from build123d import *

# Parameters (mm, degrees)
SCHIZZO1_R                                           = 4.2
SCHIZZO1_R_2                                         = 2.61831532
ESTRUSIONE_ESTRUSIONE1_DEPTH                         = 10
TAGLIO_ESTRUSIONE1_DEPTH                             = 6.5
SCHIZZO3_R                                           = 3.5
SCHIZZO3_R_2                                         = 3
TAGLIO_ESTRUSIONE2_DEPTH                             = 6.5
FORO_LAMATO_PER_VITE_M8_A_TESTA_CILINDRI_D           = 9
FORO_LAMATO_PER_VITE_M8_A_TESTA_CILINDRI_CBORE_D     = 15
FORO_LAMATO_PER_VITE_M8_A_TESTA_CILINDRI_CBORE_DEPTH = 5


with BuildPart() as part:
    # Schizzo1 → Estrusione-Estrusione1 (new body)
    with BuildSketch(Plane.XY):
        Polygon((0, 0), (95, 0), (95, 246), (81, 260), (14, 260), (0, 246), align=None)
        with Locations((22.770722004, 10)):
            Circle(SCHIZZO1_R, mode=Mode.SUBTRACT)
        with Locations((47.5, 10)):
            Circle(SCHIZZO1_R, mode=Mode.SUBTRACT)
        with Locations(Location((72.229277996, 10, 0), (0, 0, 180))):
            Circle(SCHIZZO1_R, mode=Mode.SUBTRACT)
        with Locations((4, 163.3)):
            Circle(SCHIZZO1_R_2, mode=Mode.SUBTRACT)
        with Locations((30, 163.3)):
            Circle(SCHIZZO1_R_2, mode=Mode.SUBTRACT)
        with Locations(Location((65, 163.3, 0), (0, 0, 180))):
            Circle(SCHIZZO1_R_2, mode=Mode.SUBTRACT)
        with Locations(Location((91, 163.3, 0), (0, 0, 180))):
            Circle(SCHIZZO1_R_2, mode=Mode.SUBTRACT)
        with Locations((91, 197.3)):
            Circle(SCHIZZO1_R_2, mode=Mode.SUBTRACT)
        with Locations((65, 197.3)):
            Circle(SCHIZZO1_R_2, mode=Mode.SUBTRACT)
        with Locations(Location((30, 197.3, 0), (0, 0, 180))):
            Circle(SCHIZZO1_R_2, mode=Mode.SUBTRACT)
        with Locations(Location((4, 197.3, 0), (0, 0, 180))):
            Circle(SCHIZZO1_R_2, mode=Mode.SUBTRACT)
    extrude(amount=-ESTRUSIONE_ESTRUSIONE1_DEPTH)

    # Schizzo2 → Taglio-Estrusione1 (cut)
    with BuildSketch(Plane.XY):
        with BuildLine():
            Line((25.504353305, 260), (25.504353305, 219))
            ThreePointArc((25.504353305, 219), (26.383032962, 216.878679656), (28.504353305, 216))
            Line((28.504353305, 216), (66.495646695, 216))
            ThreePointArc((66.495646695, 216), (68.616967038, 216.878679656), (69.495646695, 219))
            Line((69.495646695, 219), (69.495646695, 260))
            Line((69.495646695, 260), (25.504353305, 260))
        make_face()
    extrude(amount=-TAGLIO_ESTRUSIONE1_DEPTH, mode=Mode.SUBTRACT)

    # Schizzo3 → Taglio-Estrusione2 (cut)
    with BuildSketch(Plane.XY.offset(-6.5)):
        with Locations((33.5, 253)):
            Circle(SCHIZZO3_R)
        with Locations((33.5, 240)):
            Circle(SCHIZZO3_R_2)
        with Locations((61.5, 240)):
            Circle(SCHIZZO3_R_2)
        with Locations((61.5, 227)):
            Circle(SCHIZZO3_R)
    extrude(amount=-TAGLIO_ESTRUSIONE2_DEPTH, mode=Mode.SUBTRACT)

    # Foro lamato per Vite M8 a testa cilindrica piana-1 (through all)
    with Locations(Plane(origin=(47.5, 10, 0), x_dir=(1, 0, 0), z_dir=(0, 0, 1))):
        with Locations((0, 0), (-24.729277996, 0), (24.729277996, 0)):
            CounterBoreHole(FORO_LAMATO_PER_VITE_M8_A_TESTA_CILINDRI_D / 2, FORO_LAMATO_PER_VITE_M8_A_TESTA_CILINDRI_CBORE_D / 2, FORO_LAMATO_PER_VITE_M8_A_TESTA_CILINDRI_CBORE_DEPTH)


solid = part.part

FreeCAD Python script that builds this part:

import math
import FreeCAD as App
import Part
import Sketcher
from FreeCAD import Vector
Q = App.Units.Quantity


def add_polygon(sketch, points):
    """Adds a closed chain of lines whose ends are joined by coincident constraints."""
    first, n = sketch.GeometryCount, len(points)
    for a, b in zip(points, points[1:] + points[:1]):
        sketch.addGeometry(Part.LineSegment(App.Vector(*a, 0), App.Vector(*b, 0)), False)
    for i in range(n):
        sketch.addConstraint(Sketcher.Constraint("Coincident", first + i, 2, first + (i + 1) % n, 1))

doc = App.newDocument("Part")
body = doc.addObject("PartDesign::Body", "Body")

# Sketch on XY plane
sketch1 = body.newObject("Sketcher::SketchObject", "Sketch")
sketch1.AttachmentSupport = (doc.getObject("XY_Plane"), [""])
sketch1.MapMode = "FlatFace"
add_polygon(sketch1, [(0, 0), (95, 0), (95, 246), (81, 260), (14, 260), (0, 246)])  # lines 0-5
sketch1.addGeometry(Part.Circle(Vector(22.770722, 10, 0), Vector(0, 0, 1), 4.2), False)  # 6
sketch1.addGeometry(Part.Circle(Vector(47.5, 10, 0), Vector(0, 0, 1), 4.2), False)  # 7
sketch1.addGeometry(Part.Circle(Vector(72.229278, 10, 0), Vector(0, 0, 1), 4.2), False)  # 8
sketch1.addGeometry(Part.Circle(Vector(4, 163.3, 0), Vector(0, 0, 1), 2.618315), False)  # 9
sketch1.addGeometry(Part.Circle(Vector(4, 197.3, 0), Vector(0, 0, 1), 2.618315), False)  # 10
sketch1.addGeometry(Part.Circle(Vector(30, 163.3, 0), Vector(0, 0, 1), 2.618315), False)  # 11
sketch1.addGeometry(Part.Circle(Vector(30, 197.3, 0), Vector(0, 0, 1), 2.618315), False)  # 12
sketch1.addGeometry(Part.Circle(Vector(65, 163.3, 0), Vector(0, 0, 1), 2.618315), False)  # 13
sketch1.addGeometry(Part.Circle(Vector(65, 197.3, 0), Vector(0, 0, 1), 2.618315), False)  # 14
sketch1.addGeometry(Part.Circle(Vector(91, 163.3, 0), Vector(0, 0, 1), 2.618315), False)  # 15
sketch1.addGeometry(Part.Circle(Vector(91, 197.3, 0), Vector(0, 0, 1), 2.618315), False)  # 16
sketch1.addConstraint([
    Sketcher.Constraint("Horizontal", 0),
    Sketcher.Constraint("Vertical", 1),
    Sketcher.Constraint("Horizontal", 3),
    Sketcher.Constraint("Vertical", 5),
    Sketcher.Constraint("Coincident", 5, 2, -1, 1),
    Sketcher.Constraint("Equal", 6, 7),
    Sketcher.Constraint("Equal", 7, 8),
    Sketcher.Constraint("Equal", 9, 10),
    Sketcher.Constraint("Equal", 10, 11),
    Sketcher.Constraint("Equal", 11, 12),
    Sketcher.Constraint("Equal", 12, 13),
    Sketcher.Constraint("Equal", 13, 14),
    Sketcher.Constraint("Equal", 14, 15),
    Sketcher.Constraint("Equal", 15, 16),
    Sketcher.Constraint("Perpendicular", 2, 4),
    Sketcher.Constraint("Horizontal", 6, 3, 7, 3),
    Sketcher.Constraint("Horizontal", 7, 3, 8, 3),
    Sketcher.Constraint("Horizontal", 9, 3, 11, 3),
    Sketcher.Constraint("Horizontal", 10, 3, 12, 3),
    Sketcher.Constraint("Horizontal", 11, 3, 13, 3),
    Sketcher.Constraint("Horizontal", 12, 3, 14, 3),
    Sketcher.Constraint("Horizontal", 13, 3, 15, 3),
    Sketcher.Constraint("Horizontal", 14, 3, 16, 3),
    Sketcher.Constraint("Horizontal", 1, 2, 4, 2),
    Sketcher.Constraint("Vertical", 9, 3, 10, 3),
    Sketcher.Constraint("Vertical", 11, 3, 12, 3),
    Sketcher.Constraint("Vertical", 13, 3, 14, 3),
    Sketcher.Constraint("Vertical", 15, 3, 16, 3),
    Sketcher.Constraint("Equal", 2, 4),
    Sketcher.Constraint("Diameter", 6, Q("8.4 mm")),
    Sketcher.Constraint("DistanceX", 0, 1, 0, 2, Q("95 mm")),
    Sketcher.Constraint("DistanceX", 3, 2, 3, 1, Q("67 mm")),
    Sketcher.Constraint("DistanceY", 1, 1, 1, 2, Q("246 mm")),
    Sketcher.Constraint("DistanceY", -1, 1, 6, 3, Q("10 mm")),
    Sketcher.Constraint("DistanceX", -1, 1, 9, 3, Q("4 mm")),
    Sketcher.Constraint("DistanceX", -1, 1, 11, 3, Q("30 mm")),
    Sketcher.Constraint("DistanceX", -1, 1, 13, 3, Q("65 mm")),
    Sketcher.Constraint("DistanceX", -1, 1, 15, 3, Q("91 mm")),
    Sketcher.Constraint("DistanceY", 9, 3, 10, 3, Q("34 mm")),
    Sketcher.Constraint("DistanceX", -1, 1, 7, 3, Q("47.5 mm")),
    Sketcher.Constraint("DistanceY", -1, 1, 9, 3, Q("163.3 mm")),
    Sketcher.Constraint("Diameter", 9, Q("5.236631 mm")),
    Sketcher.Constraint("DistanceX", -1, 1, 6, 3, Q("22.770722 mm")),
    Sketcher.Constraint("DistanceX", -1, 1, 8, 3, Q("72.229278 mm")),
])
pad1 = body.newObject("PartDesign::Pad", "Pad")
pad1.Profile = sketch1
pad1.Length = 10
pad1.Reversed = True

# Sketch on XY plane
sketch2 = body.newObject("Sketcher::SketchObject", "Sketch001")
sketch2.AttachmentSupport = (doc.getObject("XY_Plane"), [""])
sketch2.MapMode = "FlatFace"
sketch2.addGeometry([
    Part.LineSegment(Vector(25.504353, 260, 0), Vector(25.504353, 219, 0)),  # 0
    Part.ArcOfCircle(Part.Circle(Vector(28.504353, 219, 0), Vector(0, 0, 1), 3), math.radians(180), math.radians(270)),  # 1
    Part.LineSegment(Vector(28.504353, 216, 0), Vector(66.495647, 216, 0)),  # 2
    Part.ArcOfCircle(Part.Circle(Vector(66.495647, 219, 0), Vector(0, 0, 1), 3), math.radians(-90), math.radians(0)),  # 3
    Part.LineSegment(Vector(69.495647, 219, 0), Vector(69.495647, 260, 0)),  # 4
    Part.LineSegment(Vector(69.495647, 260, 0), Vector(25.504353, 260, 0)),  # 5
], False)
sketch2.addConstraint([
    Sketcher.Constraint("Tangent", 0, 2, 1, 1),
    Sketcher.Constraint("Tangent", 1, 2, 2, 1),
    Sketcher.Constraint("Tangent", 2, 2, 3, 1),
    Sketcher.Constraint("Tangent", 3, 2, 4, 1),
    Sketcher.Constraint("Coincident", 4, 2, 5, 1),
    Sketcher.Constraint("Coincident", 5, 2, 0, 1),
    Sketcher.Constraint("Vertical", 0),
    Sketcher.Constraint("Horizontal", 2),
    Sketcher.Constraint("Vertical", 4),
    Sketcher.Constraint("Horizontal", 5),
    Sketcher.Constraint("Equal", 1, 3),
    Sketcher.Constraint("Radius", 1, Q("3 mm")),
    Sketcher.Constraint("DistanceY", 0, 2, 0, 1, Q("41 mm")),
    Sketcher.Constraint("DistanceY", -1, 1, 1, 3, Q("219 mm")),
    Sketcher.Constraint("DistanceX", 2, 1, 2, 2, Q("37.991293 mm")),
    Sketcher.Constraint("DistanceX", -1, 1, 1, 3, Q("28.504353 mm")),
])
pocket1 = body.newObject("PartDesign::Pocket", "Pocket")
pocket1.Profile = sketch2
pocket1.Length = 6.5

# Sketch on XY plane
sketch3 = body.newObject("Sketcher::SketchObject", "Sketch002")
sketch3.AttachmentSupport = (doc.getObject("XY_Plane"), [""])
sketch3.MapMode = "FlatFace"
sketch3.AttachmentOffset = App.Placement(Vector(0, 0, -6.5), App.Rotation())
sketch3.addGeometry([
    Part.Circle(Vector(33.5, 253, 0), Vector(0, 0, 1), 3.5),
    Part.Circle(Vector(33.5, 240, 0), Vector(0, 0, 1), 3),
    Part.Circle(Vector(61.5, 240, 0), Vector(0, 0, 1), 3),
    Part.Circle(Vector(61.5, 227, 0), Vector(0, 0, 1), 3.5),
], False)
sketch3.addConstraint([
    Sketcher.Constraint("Equal", 1, 2),
    Sketcher.Constraint("Equal", 0, 3),
    Sketcher.Constraint("Horizontal", 1, 3, 2, 3),
    Sketcher.Constraint("Vertical", 0, 3, 1, 3),
    Sketcher.Constraint("Vertical", 2, 3, 3, 3),
    Sketcher.Constraint("Diameter", 0, Q("7 mm")),
    Sketcher.Constraint("Diameter", 1, Q("6 mm")),
    Sketcher.Constraint("DistanceY", -1, 1, 0, 3, Q("253 mm")),
    Sketcher.Constraint("DistanceY", -1, 1, 1, 3, Q("240 mm")),
    Sketcher.Constraint("DistanceY", -1, 1, 3, 3, Q("227 mm")),
    Sketcher.Constraint("DistanceX", 1, 3, 2, 3, Q("28 mm")),
    Sketcher.Constraint("DistanceX", -1, 1, 0, 3, Q("33.5 mm")),
])
pocket2 = body.newObject("PartDesign::Pocket", "Pocket001")
pocket2.Profile = sketch3
pocket2.Length = 6.5

# Sketch on XY plane
sketch4 = body.newObject("Sketcher::SketchObject", "Sketch003")
sketch4.AttachmentSupport = (doc.getObject("XY_Plane"), [""])
sketch4.MapMode = "FlatFace"
sketch4.addGeometry([
    Part.Circle(Vector(47.5, 10, 0), Vector(0, 0, 1), 4.5),
    Part.Circle(Vector(22.770722, 10, 0), Vector(0, 0, 1), 4.5),
    Part.Circle(Vector(72.229278, 10, 0), Vector(0, 0, 1), 4.5),
], False)
sketch4.addConstraint([
    Sketcher.Constraint("Equal", 0, 1),
    Sketcher.Constraint("Equal", 1, 2),
    Sketcher.Constraint("Horizontal", 0, 3, 1, 3),
    Sketcher.Constraint("Horizontal", 1, 3, 2, 3),
    Sketcher.Constraint("Diameter", 0, Q("9 mm")),
    Sketcher.Constraint("DistanceY", -1, 1, 0, 3, Q("10 mm")),
    Sketcher.Constraint("DistanceX", -1, 1, 0, 3, Q("47.5 mm")),
    Sketcher.Constraint("DistanceX", -1, 1, 1, 3, Q("22.770722 mm")),
    Sketcher.Constraint("DistanceX", -1, 1, 2, 3, Q("72.229278 mm")),
])
doc.recompute()
hole = body.newObject("PartDesign::Hole", "Hole")
hole.Profile = sketch4
hole.ThreadType = "None"
hole.Diameter = 9
hole.DepthType = "ThroughAll"
hole.HoleCutType = "Counterbore"
hole.HoleCutDiameter = 15
hole.HoleCutDepth = 5

doc.recompute()
